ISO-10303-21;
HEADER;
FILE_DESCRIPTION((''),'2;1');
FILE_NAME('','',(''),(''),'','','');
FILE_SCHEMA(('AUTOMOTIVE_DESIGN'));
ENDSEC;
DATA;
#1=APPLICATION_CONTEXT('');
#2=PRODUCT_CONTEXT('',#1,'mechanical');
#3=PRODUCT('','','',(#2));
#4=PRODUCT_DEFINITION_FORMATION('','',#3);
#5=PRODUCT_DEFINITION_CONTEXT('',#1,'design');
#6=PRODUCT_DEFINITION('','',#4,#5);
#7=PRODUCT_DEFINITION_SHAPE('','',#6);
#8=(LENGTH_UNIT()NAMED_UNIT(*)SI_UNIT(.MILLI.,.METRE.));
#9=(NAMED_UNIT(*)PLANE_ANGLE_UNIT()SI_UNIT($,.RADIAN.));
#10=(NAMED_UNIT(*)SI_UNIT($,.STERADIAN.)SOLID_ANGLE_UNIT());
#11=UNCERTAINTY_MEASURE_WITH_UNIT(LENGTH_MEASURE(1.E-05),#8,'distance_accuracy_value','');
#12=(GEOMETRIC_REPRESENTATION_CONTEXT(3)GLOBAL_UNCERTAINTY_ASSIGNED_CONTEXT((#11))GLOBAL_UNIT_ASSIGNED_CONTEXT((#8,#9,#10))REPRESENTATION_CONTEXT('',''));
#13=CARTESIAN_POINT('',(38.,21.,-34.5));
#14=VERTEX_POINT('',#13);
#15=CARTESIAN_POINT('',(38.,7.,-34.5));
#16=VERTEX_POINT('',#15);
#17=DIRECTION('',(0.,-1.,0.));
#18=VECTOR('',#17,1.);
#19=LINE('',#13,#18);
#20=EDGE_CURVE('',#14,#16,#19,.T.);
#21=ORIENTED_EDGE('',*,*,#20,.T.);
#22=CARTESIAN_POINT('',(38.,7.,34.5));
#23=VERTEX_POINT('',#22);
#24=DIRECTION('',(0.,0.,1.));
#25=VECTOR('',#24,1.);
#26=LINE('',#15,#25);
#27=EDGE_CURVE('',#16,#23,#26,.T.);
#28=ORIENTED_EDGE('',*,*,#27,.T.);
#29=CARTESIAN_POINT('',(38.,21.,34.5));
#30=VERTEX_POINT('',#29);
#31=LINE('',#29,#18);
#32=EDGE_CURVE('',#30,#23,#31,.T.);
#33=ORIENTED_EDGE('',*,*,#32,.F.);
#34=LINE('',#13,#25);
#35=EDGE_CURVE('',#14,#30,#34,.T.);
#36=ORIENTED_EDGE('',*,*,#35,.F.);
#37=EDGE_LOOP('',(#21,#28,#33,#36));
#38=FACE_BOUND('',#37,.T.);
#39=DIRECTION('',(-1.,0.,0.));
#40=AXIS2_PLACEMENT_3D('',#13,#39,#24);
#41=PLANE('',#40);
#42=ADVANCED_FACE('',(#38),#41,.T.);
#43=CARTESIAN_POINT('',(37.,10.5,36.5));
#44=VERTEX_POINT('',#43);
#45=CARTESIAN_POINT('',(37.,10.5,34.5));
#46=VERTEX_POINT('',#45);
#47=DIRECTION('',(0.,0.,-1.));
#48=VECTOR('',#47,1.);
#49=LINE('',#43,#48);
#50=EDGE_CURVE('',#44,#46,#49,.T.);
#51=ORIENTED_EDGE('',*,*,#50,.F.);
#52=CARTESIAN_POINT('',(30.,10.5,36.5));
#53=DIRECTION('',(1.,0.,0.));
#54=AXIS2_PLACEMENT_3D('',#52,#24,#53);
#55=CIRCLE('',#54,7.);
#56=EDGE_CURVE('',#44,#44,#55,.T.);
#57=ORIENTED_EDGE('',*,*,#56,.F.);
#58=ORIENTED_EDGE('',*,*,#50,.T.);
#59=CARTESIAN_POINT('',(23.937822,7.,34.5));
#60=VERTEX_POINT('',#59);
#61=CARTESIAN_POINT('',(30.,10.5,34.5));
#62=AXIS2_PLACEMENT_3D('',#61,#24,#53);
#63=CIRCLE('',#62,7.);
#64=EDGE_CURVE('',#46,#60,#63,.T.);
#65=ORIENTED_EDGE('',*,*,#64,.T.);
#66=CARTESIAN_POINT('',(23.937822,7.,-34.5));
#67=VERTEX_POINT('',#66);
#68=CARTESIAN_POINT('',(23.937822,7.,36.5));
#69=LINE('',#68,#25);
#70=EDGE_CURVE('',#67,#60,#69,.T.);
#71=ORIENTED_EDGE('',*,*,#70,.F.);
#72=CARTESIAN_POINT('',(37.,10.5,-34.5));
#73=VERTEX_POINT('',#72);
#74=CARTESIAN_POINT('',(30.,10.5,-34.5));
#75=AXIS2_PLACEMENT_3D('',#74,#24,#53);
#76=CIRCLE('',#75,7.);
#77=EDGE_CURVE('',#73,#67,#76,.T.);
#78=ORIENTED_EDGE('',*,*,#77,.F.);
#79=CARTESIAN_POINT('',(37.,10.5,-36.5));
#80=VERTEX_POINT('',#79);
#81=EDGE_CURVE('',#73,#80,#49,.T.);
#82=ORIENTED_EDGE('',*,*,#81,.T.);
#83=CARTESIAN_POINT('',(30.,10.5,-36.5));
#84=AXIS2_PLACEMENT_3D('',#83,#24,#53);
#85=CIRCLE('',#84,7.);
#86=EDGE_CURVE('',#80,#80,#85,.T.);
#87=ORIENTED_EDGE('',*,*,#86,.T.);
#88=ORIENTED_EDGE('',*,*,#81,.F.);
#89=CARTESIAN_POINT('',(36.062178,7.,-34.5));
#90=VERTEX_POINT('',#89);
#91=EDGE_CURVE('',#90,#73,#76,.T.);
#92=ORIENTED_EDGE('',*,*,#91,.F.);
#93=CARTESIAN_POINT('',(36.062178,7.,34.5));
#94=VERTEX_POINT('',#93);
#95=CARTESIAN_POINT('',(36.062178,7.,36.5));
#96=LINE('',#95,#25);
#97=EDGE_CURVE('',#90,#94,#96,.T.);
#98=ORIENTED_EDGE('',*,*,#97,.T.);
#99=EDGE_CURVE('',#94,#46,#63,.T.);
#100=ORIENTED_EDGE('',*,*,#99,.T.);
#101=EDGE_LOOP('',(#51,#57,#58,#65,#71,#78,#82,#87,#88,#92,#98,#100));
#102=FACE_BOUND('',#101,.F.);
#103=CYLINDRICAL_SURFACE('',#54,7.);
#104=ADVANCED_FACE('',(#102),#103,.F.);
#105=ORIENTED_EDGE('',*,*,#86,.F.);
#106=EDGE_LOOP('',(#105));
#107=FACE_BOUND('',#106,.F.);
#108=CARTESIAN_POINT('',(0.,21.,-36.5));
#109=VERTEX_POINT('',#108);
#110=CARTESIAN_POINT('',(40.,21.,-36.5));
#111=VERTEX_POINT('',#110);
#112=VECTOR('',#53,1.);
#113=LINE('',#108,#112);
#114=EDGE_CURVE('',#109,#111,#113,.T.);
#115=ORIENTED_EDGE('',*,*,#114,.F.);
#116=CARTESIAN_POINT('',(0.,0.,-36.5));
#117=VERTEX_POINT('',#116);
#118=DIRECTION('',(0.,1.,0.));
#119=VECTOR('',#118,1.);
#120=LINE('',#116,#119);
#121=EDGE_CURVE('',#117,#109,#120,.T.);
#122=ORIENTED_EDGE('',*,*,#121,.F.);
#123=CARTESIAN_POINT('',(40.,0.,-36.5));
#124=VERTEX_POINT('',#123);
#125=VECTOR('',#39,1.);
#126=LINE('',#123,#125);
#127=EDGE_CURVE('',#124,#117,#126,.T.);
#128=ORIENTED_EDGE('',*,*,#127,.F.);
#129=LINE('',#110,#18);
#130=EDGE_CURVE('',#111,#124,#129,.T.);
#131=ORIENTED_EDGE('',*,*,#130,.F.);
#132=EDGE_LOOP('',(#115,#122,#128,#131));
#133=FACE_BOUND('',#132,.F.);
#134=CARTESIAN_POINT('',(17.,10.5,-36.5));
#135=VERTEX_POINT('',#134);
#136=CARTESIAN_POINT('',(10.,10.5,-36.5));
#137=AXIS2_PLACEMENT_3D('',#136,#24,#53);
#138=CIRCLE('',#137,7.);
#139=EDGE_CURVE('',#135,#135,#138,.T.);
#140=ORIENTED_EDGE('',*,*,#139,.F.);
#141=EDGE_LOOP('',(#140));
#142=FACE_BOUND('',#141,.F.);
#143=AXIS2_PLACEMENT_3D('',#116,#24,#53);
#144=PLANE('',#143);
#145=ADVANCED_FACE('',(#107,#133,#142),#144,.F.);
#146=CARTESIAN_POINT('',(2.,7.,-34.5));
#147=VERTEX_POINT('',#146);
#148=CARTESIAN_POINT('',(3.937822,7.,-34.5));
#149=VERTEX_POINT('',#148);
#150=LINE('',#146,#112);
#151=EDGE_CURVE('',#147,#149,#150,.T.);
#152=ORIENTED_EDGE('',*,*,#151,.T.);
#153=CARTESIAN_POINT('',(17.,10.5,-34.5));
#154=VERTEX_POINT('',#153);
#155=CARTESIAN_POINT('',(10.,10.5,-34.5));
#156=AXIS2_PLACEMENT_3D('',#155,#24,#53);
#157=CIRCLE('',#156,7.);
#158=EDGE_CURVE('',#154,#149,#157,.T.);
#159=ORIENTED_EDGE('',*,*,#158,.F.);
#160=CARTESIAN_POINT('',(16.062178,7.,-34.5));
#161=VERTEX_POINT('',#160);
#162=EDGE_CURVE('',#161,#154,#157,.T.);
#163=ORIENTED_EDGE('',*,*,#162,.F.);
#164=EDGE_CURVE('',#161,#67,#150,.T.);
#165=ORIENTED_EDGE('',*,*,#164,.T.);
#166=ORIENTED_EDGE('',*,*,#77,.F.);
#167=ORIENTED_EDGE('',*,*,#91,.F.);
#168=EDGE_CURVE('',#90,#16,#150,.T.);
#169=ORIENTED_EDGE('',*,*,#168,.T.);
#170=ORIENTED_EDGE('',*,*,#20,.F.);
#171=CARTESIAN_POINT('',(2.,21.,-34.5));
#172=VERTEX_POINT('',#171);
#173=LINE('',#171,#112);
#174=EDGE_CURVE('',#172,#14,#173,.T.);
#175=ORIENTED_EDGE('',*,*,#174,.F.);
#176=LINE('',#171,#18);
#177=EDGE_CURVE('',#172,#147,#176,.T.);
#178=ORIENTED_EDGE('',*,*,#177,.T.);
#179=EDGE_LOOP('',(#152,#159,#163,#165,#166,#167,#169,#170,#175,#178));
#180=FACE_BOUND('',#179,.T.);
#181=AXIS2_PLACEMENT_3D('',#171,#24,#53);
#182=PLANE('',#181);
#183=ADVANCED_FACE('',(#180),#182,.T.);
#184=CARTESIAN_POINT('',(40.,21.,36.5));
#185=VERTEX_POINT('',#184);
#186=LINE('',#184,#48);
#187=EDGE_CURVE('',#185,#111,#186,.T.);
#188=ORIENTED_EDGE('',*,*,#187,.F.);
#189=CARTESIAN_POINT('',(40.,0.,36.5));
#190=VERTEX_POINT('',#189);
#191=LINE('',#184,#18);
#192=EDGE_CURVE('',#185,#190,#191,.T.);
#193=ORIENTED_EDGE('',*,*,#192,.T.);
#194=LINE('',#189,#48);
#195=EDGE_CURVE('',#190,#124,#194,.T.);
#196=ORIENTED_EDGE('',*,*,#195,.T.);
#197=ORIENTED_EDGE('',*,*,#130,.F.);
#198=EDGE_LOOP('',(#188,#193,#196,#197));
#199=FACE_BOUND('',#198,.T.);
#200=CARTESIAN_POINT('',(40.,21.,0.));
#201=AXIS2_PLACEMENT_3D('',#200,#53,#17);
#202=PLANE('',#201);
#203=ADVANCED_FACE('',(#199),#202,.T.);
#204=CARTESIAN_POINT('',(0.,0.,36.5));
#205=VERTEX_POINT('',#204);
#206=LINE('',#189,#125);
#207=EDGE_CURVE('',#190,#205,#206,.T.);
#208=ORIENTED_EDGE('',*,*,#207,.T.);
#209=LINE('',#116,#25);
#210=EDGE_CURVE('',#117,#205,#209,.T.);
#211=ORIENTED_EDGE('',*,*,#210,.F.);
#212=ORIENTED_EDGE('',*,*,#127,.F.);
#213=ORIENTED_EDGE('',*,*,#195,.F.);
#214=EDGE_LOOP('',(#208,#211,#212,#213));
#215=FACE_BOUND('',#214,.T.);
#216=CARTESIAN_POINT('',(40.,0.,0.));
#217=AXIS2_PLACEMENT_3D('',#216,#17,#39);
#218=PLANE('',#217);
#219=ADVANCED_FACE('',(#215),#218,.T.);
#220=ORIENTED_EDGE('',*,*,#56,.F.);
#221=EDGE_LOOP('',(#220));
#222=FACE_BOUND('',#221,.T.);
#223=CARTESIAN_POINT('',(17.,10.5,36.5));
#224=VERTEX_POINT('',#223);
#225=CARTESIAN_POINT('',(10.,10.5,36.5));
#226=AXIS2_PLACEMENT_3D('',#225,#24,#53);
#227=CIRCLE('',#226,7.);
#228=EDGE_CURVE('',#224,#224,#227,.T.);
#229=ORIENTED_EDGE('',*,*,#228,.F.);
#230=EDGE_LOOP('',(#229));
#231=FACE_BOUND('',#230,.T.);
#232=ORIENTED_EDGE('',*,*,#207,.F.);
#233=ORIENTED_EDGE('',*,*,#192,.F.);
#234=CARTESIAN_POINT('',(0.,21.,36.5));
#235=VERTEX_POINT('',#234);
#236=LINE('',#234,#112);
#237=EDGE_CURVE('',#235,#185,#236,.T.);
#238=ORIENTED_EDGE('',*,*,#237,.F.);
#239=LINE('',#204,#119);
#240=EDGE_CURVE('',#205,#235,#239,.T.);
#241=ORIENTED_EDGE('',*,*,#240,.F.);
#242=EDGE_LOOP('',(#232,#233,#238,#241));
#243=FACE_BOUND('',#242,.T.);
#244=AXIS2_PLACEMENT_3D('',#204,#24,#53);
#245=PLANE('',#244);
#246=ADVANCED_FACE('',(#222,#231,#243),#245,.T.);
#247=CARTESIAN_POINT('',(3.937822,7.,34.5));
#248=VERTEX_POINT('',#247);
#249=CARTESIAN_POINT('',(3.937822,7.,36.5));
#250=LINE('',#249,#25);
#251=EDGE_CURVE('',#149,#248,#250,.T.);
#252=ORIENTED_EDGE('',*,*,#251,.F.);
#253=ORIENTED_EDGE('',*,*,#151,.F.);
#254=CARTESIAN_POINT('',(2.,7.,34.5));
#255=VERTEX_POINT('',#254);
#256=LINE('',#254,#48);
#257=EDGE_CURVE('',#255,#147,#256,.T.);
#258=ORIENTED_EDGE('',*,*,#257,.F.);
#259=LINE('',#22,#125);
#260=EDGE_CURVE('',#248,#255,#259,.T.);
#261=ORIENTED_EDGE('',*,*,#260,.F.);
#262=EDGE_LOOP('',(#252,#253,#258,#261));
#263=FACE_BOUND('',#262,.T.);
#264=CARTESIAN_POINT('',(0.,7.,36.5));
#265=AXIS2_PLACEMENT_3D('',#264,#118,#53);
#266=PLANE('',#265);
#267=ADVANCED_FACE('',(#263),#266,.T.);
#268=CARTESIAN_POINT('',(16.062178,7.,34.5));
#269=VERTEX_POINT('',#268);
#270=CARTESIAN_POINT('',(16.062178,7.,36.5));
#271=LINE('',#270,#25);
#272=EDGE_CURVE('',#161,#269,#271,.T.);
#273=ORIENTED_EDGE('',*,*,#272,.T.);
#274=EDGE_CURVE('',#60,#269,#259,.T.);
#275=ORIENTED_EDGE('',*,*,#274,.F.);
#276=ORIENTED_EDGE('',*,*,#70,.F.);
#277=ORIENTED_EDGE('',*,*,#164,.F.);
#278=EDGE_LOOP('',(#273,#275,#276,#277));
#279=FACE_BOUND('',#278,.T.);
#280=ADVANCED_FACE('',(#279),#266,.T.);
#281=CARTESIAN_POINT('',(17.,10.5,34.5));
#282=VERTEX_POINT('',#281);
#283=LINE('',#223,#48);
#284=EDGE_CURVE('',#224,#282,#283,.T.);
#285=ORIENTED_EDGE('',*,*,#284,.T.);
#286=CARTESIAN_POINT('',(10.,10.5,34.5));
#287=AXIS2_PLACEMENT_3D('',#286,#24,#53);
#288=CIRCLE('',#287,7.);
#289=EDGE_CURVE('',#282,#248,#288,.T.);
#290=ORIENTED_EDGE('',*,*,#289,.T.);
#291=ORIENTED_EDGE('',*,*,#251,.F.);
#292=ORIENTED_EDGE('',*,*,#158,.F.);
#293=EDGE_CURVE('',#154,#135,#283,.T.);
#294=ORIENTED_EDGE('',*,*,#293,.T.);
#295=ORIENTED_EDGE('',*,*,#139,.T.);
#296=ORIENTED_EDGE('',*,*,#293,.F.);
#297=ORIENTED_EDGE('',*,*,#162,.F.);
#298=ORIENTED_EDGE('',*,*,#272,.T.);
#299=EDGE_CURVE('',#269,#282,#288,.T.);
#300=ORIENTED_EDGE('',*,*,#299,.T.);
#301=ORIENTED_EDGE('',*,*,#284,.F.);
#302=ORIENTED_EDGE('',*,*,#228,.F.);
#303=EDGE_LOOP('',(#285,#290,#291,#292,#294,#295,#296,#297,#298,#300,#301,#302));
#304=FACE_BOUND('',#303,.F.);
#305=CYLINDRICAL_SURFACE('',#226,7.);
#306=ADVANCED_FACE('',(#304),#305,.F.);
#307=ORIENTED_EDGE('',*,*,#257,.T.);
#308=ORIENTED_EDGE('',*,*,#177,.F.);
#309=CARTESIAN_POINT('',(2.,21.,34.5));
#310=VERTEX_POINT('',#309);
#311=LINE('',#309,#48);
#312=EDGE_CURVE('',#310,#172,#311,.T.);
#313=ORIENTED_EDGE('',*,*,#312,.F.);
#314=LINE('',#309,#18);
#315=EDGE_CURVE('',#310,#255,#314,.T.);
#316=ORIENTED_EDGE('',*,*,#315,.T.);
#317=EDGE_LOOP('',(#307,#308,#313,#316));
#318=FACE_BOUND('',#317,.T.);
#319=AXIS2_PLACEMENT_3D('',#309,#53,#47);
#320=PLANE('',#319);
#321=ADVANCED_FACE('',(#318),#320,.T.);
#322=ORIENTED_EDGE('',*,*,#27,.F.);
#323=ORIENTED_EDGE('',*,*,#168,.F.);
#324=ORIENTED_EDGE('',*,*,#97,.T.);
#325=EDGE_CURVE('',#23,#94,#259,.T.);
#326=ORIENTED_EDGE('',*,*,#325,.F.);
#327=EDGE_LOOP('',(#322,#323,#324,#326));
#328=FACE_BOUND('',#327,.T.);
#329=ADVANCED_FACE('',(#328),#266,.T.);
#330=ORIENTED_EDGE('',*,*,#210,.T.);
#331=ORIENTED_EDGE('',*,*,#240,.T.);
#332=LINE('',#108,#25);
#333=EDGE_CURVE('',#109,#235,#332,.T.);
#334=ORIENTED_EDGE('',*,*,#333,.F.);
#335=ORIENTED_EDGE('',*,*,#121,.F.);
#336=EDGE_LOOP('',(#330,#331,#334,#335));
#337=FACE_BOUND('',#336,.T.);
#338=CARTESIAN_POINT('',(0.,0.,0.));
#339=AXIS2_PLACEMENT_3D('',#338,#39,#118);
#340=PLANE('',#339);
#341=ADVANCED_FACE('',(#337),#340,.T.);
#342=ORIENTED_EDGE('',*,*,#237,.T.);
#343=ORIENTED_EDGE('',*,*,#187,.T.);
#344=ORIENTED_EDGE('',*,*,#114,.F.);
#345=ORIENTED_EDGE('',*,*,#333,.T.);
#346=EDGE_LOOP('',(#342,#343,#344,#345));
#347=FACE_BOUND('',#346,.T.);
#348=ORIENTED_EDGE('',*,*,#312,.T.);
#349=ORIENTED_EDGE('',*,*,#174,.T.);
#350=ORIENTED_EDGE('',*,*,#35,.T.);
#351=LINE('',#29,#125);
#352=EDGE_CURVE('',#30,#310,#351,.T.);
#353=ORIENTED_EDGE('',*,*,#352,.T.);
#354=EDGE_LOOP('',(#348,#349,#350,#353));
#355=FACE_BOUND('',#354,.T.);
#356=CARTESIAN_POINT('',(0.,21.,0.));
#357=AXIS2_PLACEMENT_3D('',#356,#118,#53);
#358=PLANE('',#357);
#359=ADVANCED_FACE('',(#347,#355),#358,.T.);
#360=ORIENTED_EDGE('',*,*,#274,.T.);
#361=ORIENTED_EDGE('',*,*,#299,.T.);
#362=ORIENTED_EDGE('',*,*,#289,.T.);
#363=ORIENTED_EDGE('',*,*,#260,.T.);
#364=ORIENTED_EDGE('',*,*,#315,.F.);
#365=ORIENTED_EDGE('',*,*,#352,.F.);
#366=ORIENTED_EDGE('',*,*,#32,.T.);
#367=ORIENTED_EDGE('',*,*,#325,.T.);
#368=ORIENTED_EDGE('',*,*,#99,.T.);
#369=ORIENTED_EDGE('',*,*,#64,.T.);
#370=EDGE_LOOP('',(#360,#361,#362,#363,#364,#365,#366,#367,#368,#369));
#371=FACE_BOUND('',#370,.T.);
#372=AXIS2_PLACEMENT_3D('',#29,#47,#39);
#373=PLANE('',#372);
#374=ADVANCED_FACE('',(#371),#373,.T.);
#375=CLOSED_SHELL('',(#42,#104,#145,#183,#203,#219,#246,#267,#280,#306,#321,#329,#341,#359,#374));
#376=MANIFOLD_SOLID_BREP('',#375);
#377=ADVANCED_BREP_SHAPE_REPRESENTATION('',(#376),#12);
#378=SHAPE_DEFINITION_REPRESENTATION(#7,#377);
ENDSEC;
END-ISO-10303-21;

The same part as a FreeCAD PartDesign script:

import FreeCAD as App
import Part
import Sketcher

V = App.Vector
Q = App.Units.Quantity

doc = App.newDocument("Part")
body = doc.addObject("PartDesign::Body", "Body")

# Sketch on XY plane
sketch1 = doc.addObject("Sketcher::SketchObject", "Sketch")
body.addObject(sketch1)
sketch1.AttachmentSupport = (doc.XY_Plane, [""])
sketch1.MapMode = "FlatFace"
sketch1.addGeometry(Part.LineSegment(V(40, 21, 0), V(0, 21, 0)), False)
sketch1.addGeometry(Part.LineSegment(V(0, 21, 0), V(0, 0, 0)), False)
sketch1.addGeometry(Part.LineSegment(V(0, 0, 0), V(40, 0, 0)), False)
sketch1.addGeometry(Part.LineSegment(V(40, 0, 0), V(40, 21, 0)), False)
sketch1.addConstraint(Sketcher.Constraint("Coincident", 0, 2, 1, 1))
sketch1.addConstraint(Sketcher.Constraint("Coincident", 1, 2, 2, 1))
sketch1.addConstraint(Sketcher.Constraint("Coincident", 2, 2, 3, 1))
sketch1.addConstraint(Sketcher.Constraint("Coincident", 3, 2, 0, 1))
sketch1.addConstraint(Sketcher.Constraint("Horizontal", 0))
sketch1.addConstraint(Sketcher.Constraint("Vertical", 1))
sketch1.addConstraint(Sketcher.Constraint("Horizontal", 2))
sketch1.addConstraint(Sketcher.Constraint("Vertical", 3))
sketch1.addConstraint(Sketcher.Constraint("Coincident", 1, 2, -1, 1))
sketch1.addConstraint(Sketcher.Constraint("DistanceX", 0, 2, 0, 1, Q("40 mm")))
sketch1.addConstraint(Sketcher.Constraint("DistanceY", 1, 2, 1, 1, Q("21 mm")))
pad1 = doc.addObject("PartDesign::Pad", "Pad")
body.addObject(pad1)
pad1.Profile = sketch1
pad1.Length = 73
pad1.Midplane = True

# Sketch on XY plane
sketch2 = doc.addObject("Sketcher::SketchObject", "Sketch001")
body.addObject(sketch2)
sketch2.AttachmentSupport = (doc.XY_Plane, [""])
sketch2.MapMode = "FlatFace"
sketch2.AttachmentOffset = App.Placement(V(0, 0, 36.5), App.Rotation())
sketch2.addGeometry(Part.Circle(V(10, 10, 0), V(0, 0, 1), 7), False)
sketch2.addGeometry(Part.Circle(V(30, 10, 0), V(0, 0, 1), 7), False)
sketch2.addConstraint(Sketcher.Constraint("Equal", 0, 1))
sketch2.addConstraint(Sketcher.Constraint("Horizontal", 0, 3, 1, 3))
sketch2.addConstraint(Sketcher.Constraint("Diameter", 0, Q("14 mm")))
sketch2.addConstraint(Sketcher.Constraint("DistanceX", 0, 3, 1, 3, Q("20 mm")))
sketch2.addConstraint(Sketcher.Constraint("DistanceY", -1, 1, 0, 3, Q("10.5 mm")))
sketch2.addConstraint(Sketcher.Constraint("DistanceX", -1, 1, 0, 3, Q("10 mm")))
pocket1 = doc.addObject("PartDesign::Pocket", "Pocket")
body.addObject(pocket1)
pocket1.Profile = sketch2
pocket1.Type = "ThroughAll"

# Sketch on XZ plane
sketch3 = doc.addObject("Sketcher::SketchObject", "Sketch002")
body.addObject(sketch3)
sketch3.AttachmentSupport = (doc.XZ_Plane, [""])
sketch3.MapMode = "FlatFace"
sketch3.AttachmentOffset = App.Placement(V(0, 0, -21), App.Rotation())
sketch3.addGeometry(Part.LineSegment(V(38, -34, 0), V(2, -34, 0)), False)
sketch3.addGeometry(Part.LineSegment(V(2, -34, 0), V(2, 34, 0)), False)
sketch3.addGeometry(Part.LineSegment(V(2, 34, 0), V(38, 34, 0)), False)
sketch3.addGeometry(Part.LineSegment(V(38, 34, 0), V(38, -34, 0)), False)
sketch3.addConstraint(Sketcher.Constraint("Coincident", 0, 2, 1, 1))
sketch3.addConstraint(Sketcher.Constraint("Coincident", 1, 2, 2, 1))
sketch3.addConstraint(Sketcher.Constraint("Coincident", 2, 2, 3, 1))
sketch3.addConstraint(Sketcher.Constraint("Coincident", 3, 2, 0, 1))
sketch3.addConstraint(Sketcher.Constraint("Horizontal", 0))
sketch3.addConstraint(Sketcher.Constraint("Vertical", 1))
sketch3.addConstraint(Sketcher.Constraint("Horizontal", 2))
sketch3.addConstraint(Sketcher.Constraint("Vertical", 3))
sketch3.addConstraint(Sketcher.Constraint("DistanceX", -1, 1, 0, 2, Q("2 mm")))
sketch3.addConstraint(Sketcher.Constraint("DistanceX", 0, 2, 0, 1, Q("36 mm")))
sketch3.addConstraint(Sketcher.Constraint("DistanceY", 1, 1, 1, 2, Q("69 mm")))
sketch3.addConstraint(Sketcher.Constraint("DistanceY", 0, 2, -1, 1, Q("34.5 mm")))
pocket2 = doc.addObject("PartDesign::Pocket", "Pocket001")
body.addObject(pocket2)
pocket2.Profile = sketch3
pocket2.Length = 14
pocket2.Reversed = True

doc.recompute()
